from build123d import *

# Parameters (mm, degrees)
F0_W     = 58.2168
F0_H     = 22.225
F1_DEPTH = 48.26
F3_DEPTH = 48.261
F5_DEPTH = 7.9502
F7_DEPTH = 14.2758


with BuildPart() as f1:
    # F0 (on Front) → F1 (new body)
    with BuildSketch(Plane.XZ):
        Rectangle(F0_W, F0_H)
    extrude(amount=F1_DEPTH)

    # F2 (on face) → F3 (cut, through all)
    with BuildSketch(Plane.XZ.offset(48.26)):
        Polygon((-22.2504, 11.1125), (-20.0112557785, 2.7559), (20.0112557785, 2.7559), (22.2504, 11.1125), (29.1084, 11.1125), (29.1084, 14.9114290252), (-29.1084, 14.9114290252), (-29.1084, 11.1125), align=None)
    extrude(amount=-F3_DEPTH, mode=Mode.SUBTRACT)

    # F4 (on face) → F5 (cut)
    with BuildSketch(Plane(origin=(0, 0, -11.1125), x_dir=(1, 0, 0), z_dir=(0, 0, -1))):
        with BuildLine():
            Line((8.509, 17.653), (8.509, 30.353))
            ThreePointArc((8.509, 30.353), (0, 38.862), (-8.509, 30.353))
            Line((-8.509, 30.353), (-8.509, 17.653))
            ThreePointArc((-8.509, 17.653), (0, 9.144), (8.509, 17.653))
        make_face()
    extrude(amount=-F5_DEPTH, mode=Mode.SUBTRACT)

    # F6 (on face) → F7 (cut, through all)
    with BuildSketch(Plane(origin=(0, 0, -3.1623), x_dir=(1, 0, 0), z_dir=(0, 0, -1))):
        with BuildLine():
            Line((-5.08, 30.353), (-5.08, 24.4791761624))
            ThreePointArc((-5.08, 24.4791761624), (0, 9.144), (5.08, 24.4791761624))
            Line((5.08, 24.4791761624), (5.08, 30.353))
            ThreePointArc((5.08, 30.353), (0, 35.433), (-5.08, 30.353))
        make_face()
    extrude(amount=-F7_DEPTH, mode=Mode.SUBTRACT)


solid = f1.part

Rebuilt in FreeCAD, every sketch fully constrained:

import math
import FreeCAD as App
import Part
import Sketcher

V = App.Vector
Q = App.Units.Quantity

doc = App.newDocument("Part")
body = doc.addObject("PartDesign::Body", "Body")

# Sketch on XZ plane
sketch1 = doc.addObject("Sketcher::SketchObject", "Sketch")
body.addObject(sketch1)
sketch1.AttachmentSupport = (doc.XZ_Plane, [""])
sketch1.MapMode = "FlatFace"
sketch1.addGeometry(Part.LineSegment(V(-29, 11, 0), V(-29, -11, 0)), False)
sketch1.addGeometry(Part.LineSegment(V(-29, -11, 0), V(29, -11, 0)), False)
sketch1.addGeometry(Part.LineSegment(V(29, -11, 0), V(29, 11, 0)), False)
sketch1.addGeometry(Part.LineSegment(V(29, 11, 0), V(-29, 11, 0)), False)
sketch1.addConstraint(Sketcher.Constraint("Coincident", 0, 2, 1, 1))
sketch1.addConstraint(Sketcher.Constraint("Coincident", 1, 2, 2, 1))
sketch1.addConstraint(Sketcher.Constraint("Coincident", 2, 2, 3, 1))
sketch1.addConstraint(Sketcher.Constraint("Coincident", 3, 2, 0, 1))
sketch1.addConstraint(Sketcher.Constraint("Vertical", 0))
sketch1.addConstraint(Sketcher.Constraint("Horizontal", 1))
sketch1.addConstraint(Sketcher.Constraint("Vertical", 2))
sketch1.addConstraint(Sketcher.Constraint("Horizontal", 3))
sketch1.addConstraint(Sketcher.Constraint("Symmetric", 0, 2, 2, 2, -1, 1))
sketch1.addConstraint(Sketcher.Constraint("DistanceX", 1, 1, 1, 2, Q("2.292 in")))
sketch1.addConstraint(Sketcher.Constraint("DistanceY", 0, 2, 0, 1, Q("0.875 in")))
pad1 = doc.addObject("PartDesign::Pad", "Pad")
body.addObject(pad1)
pad1.Profile = sketch1
pad1.Length = Q("1.9 in")

# Sketch on XZ plane
sketch2 = doc.addObject("Sketcher::SketchObject", "Sketch001")
body.addObject(sketch2)
sketch2.AttachmentSupport = (doc.XZ_Plane, [""])
sketch2.MapMode = "FlatFace"
sketch2.AttachmentOffset = App.Placement(V(0, 0, 1.9 * 25.4), App.Rotation())
sketch2.addGeometry(Part.LineSegment(V(-22.3, 11.1, 0), V(-20, 2.8, 0)), False)
sketch2.addGeometry(Part.LineSegment(V(-20, 2.8, 0), V(20, 2.8, 0)), False)
sketch2.addGeometry(Part.LineSegment(V(20, 2.8, 0), V(22.3, 11.1, 0)), False)
sketch2.addGeometry(Part.LineSegment(V(22.3, 11.1, 0), V(29.1, 11.1, 0)), False)
sketch2.addGeometry(Part.LineSegment(V(29.1, 11.1, 0), V(29.1, 14.9, 0)), False)
sketch2.addGeometry(Part.LineSegment(V(29.1, 14.9, 0), V(-29.1, 14.9, 0)), False)
sketch2.addGeometry(Part.LineSegment(V(-29.1, 14.9, 0), V(-29.1, 11.1, 0)), False)
sketch2.addGeometry(Part.LineSegment(V(-29.1, 11.1, 0), V(-22.3, 11.1, 0)), False)
sketch2.addConstraint(Sketcher.Constraint("Coincident", 0, 2, 1, 1))
sketch2.addConstraint(Sketcher.Constraint("Coincident", 1, 2, 2, 1))
sketch2.addConstraint(Sketcher.Constraint("Coincident", 2, 2, 3, 1))
sketch2.addConstraint(Sketcher.Constraint("Coincident", 3, 2, 4, 1))
sketch2.addConstraint(Sketcher.Constraint("Coincident", 4, 2, 5, 1))
sketch2.addConstraint(Sketcher.Constraint("Coincident", 5, 2, 6, 1))
sketch2.addConstraint(Sketcher.Constraint("Coincident", 6, 2, 7, 1))
sketch2.addConstraint(Sketcher.Constraint("Coincident", 7, 2, 0, 1))
sketch2.addConstraint(Sketcher.Constraint("Horizontal", 1))
sketch2.addConstraint(Sketcher.Constraint("Horizontal", 3))
sketch2.addConstraint(Sketcher.Constraint("Vertical", 4))
sketch2.addConstraint(Sketcher.Constraint("Horizontal", 5))
sketch2.addConstraint(Sketcher.Constraint("Vertical", 6))
sketch2.addConstraint(Sketcher.Constraint("Horizontal", 7))
sketch2.addConstraint(Sketcher.Constraint("Symmetric", 3, 2, 6, 2, -2))
sketch2.addConstraint(Sketcher.Constraint("Equal", 3, 7))
sketch2.addConstraint(Sketcher.Constraint("Equal", 0, 2))
sketch2.addConstraint(Sketcher.Constraint("Angle", 0, Q("-75 deg")))
sketch2.addConstraint(Sketcher.Constraint("DistanceX", 3, 1, 3, 2, Q("0.27 in")))
sketch2.addConstraint(Sketcher.Constraint("DistanceX", 5, 2, 5, 1, Q("2.292 in")))
sketch2.addConstraint(Sketcher.Constraint("DistanceY", -1, 1, 2, 2, Q("0.4375 in")))
sketch2.addConstraint(Sketcher.Constraint("DistanceY", 1, 2, 2, 2, Q("0.329 in")))
sketch2.addConstraint(Sketcher.Constraint("DistanceY", 4, 1, 4, 2, 3.798929))
pocket1 = doc.addObject("PartDesign::Pocket", "Pocket")
body.addObject(pocket1)
pocket1.Profile = sketch2
pocket1.Type = "ThroughAll"

# Sketch on XY plane
sketch3 = doc.addObject("Sketcher::SketchObject", "Sketch002")
body.addObject(sketch3)
sketch3.AttachmentSupport = (doc.XY_Plane, [""])
sketch3.MapMode = "FlatFace"
sketch3.AttachmentOffset = App.Placement(V(0, 0, -0.4375 * 25.4), App.Rotation())
sketch3.addGeometry(Part.LineSegment(V(9, -18, 0), V(9, -30, 0)), False)
sketch3.addGeometry(Part.ArcOfCircle(Part.Circle(V(0, -30, 0), V(0, 0, 1), 9), math.radians(180), math.radians(360)), False)
sketch3.addGeometry(Part.LineSegment(V(-9, -30, 0), V(-9, -18, 0)), False)
sketch3.addGeometry(Part.ArcOfCircle(Part.Circle(V(0, -18, 0), V(0, 0, 1), 9), math.radians(0), math.radians(180)), False)
sketch3.addConstraint(Sketcher.Constraint("Tangent", 0, 2, 1, 2))
sketch3.addConstraint(Sketcher.Constraint("Tangent", 1, 1, 2, 1))
sketch3.addConstraint(Sketcher.Constraint("Tangent", 2, 2, 3, 2))
sketch3.addConstraint(Sketcher.Constraint("Tangent", 3, 1, 0, 1))
sketch3.addConstraint(Sketcher.Constraint("Vertical", 0))
sketch3.addConstraint(Sketcher.Constraint("Vertical", 2))
sketch3.addConstraint(Sketcher.Constraint("PointOnObject", 1, 3, -2))
sketch3.addConstraint(Sketcher.Constraint("DistanceY", 0, 2, 0, 1, Q("0.5 in")))
sketch3.addConstraint(Sketcher.Constraint("Radius", 1, Q("0.335 in")))
sketch3.addConstraint(Sketcher.Constraint("DistanceY", 1, 3, -1, 1, Q("1.195 in")))
pocket2 = doc.addObject("PartDesign::Pocket", "Pocket001")
body.addObject(pocket2)
pocket2.Profile = sketch3
pocket2.Length = Q("0.313 in")
pocket2.Reversed = True

# Sketch on XY plane
sketch4 = doc.addObject("Sketcher::SketchObject", "Sketch003")
body.addObject(sketch4)
sketch4.AttachmentSupport = (doc.XY_Plane, [""])
sketch4.MapMode = "FlatFace"
sketch4.AttachmentOffset = App.Placement(V(0, 0, -0.1245 * 25.4), App.Rotation())
sketch4.addGeometry(Part.LineSegment(V(-5, -30, 0), V(-5, -24, 0)), False)
sketch4.addGeometry(Part.ArcOfCircle(Part.Circle(V(0, -18, 0), V(0, 0, 1), 9), math.radians(-53), math.radians(233)), False)
sketch4.addGeometry(Part.LineSegment(V(5, -24, 0), V(5, -30, 0)), False)
sketch4.addGeometry(Part.ArcOfCircle(Part.Circle(V(0, -30, 0), V(0, 0, 1), 5), math.radians(180), math.radians(360)), False)
sketch4.addConstraint(Sketcher.Constraint("Coincident", 0, 2, 1, 2))
sketch4.addConstraint(Sketcher.Constraint("Coincident", 1, 1, 2, 1))
sketch4.addConstraint(Sketcher.Constraint("Tangent", 2, 2, 3, 2))
sketch4.addConstraint(Sketcher.Constraint("Tangent", 3, 1, 0, 1))
sketch4.addConstraint(Sketcher.Constraint("Vertical", 0))
sketch4.addConstraint(Sketcher.Constraint("Vertical", 2))
sketch4.addConstraint(Sketcher.Constraint("Symmetric", 0, 2, 1, 1, -2))
sketch4.addConstraint(Sketcher.Constraint("Radius", 3, Q("0.2 in")))
sketch4.addConstraint(Sketcher.Constraint("Radius", 1, Q("0.335 in")))
sketch4.addConstraint(Sketcher.Constraint("DistanceY", 3, 3, 1, 3, Q("0.5 in")))
sketch4.addConstraint(Sketcher.Constraint("DistanceY", 1, 3, -1, 1, Q("0.695 in")))
pocket3 = doc.addObject("PartDesign::Pocket", "Pocket002")
body.addObject(pocket3)
pocket3.Profile = sketch4
pocket3.Type = "ThroughAll"
pocket3.Reversed = True

doc.recompute()
